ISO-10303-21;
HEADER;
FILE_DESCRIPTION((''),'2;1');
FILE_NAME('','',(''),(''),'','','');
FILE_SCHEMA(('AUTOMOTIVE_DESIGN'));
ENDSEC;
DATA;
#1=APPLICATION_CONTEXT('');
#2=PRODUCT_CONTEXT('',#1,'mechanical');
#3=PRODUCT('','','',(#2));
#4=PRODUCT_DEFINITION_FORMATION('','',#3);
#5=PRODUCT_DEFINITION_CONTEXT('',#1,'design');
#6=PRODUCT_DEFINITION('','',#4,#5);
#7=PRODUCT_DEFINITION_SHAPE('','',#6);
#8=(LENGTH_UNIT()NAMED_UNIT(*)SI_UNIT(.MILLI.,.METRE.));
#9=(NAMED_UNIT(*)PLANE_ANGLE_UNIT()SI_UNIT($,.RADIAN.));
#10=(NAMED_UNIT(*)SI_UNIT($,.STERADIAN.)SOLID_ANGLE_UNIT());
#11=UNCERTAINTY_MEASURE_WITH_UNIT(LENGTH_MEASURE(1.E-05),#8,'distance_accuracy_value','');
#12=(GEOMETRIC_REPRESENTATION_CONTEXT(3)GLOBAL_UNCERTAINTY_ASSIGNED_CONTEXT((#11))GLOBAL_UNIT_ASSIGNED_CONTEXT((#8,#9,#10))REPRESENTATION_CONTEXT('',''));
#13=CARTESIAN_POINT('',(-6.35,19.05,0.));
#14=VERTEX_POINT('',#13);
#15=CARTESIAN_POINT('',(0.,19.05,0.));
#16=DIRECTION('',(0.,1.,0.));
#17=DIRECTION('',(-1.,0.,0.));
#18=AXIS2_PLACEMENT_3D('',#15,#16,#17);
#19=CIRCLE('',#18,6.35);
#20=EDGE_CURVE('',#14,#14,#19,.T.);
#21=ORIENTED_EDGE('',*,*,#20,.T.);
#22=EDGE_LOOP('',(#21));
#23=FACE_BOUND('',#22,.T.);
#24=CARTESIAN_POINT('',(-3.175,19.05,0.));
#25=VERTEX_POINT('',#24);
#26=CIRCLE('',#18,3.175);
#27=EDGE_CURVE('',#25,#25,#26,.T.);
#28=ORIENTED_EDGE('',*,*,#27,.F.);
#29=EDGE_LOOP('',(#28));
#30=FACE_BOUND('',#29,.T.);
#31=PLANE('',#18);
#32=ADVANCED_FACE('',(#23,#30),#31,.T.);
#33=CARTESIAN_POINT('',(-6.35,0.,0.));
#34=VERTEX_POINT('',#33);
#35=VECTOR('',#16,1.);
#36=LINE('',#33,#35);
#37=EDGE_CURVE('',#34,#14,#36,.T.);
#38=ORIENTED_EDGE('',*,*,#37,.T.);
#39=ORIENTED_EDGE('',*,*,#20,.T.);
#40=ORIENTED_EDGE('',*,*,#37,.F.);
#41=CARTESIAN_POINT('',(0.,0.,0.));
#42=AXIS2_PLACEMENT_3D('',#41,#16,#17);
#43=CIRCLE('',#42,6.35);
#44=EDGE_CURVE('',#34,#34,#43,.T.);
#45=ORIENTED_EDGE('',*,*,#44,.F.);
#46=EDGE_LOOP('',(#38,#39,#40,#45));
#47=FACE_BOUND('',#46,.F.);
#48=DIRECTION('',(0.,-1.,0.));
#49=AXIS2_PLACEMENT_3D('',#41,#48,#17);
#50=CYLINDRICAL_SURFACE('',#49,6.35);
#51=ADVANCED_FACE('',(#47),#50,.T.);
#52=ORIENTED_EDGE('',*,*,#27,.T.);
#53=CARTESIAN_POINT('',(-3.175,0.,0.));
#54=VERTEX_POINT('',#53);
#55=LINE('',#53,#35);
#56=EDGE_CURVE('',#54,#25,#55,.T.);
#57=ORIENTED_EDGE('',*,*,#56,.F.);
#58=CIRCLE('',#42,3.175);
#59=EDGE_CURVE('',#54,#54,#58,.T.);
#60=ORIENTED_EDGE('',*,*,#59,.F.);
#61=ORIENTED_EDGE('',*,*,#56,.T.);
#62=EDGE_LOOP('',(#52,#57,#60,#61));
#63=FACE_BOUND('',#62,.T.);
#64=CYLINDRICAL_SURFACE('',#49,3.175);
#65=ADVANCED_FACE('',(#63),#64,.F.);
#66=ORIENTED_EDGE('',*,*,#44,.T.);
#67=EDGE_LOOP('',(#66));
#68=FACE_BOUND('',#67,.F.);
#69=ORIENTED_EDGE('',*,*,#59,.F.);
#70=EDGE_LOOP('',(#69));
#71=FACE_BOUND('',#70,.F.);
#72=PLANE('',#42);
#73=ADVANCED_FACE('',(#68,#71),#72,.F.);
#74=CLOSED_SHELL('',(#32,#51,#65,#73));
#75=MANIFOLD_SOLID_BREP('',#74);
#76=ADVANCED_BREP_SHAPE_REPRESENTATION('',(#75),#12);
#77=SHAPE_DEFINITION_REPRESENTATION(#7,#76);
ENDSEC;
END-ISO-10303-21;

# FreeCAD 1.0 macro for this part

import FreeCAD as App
import Part
import Sketcher
from FreeCAD import Vector
Q = App.Units.Quantity

doc = App.newDocument("Part")
body = doc.addObject("PartDesign::Body", "Body")

# Sketch on XZ plane
sketch1 = doc.addObject("Sketcher::SketchObject", "Sketch")
body.addObject(sketch1)
sketch1.AttachmentSupport = (doc.XZ_Plane, [""])
sketch1.MapMode = "FlatFace"
sketch1.addGeometry([
    Part.Circle(Vector(0, 0, 0), Vector(0, 0, 1), 6.3),
    Part.Circle(Vector(0, 0, 0), Vector(0, 0, 1), 3.2),
], False)
sketch1.addConstraint([
    Sketcher.Constraint("Coincident", 0, 3, -1, 1),
    Sketcher.Constraint("Coincident", 1, 3, -1, 1),
    Sketcher.Constraint("Diameter", 0, Q("0.5 in")),
    Sketcher.Constraint("Diameter", 1, Q("0.25 in")),
])
pad1 = doc.addObject("PartDesign::Pad", "Pad")
body.addObject(pad1)
pad1.Profile = sketch1
pad1.Length = Q("0.75 in")
pad1.Reversed = True

doc.recompute()
